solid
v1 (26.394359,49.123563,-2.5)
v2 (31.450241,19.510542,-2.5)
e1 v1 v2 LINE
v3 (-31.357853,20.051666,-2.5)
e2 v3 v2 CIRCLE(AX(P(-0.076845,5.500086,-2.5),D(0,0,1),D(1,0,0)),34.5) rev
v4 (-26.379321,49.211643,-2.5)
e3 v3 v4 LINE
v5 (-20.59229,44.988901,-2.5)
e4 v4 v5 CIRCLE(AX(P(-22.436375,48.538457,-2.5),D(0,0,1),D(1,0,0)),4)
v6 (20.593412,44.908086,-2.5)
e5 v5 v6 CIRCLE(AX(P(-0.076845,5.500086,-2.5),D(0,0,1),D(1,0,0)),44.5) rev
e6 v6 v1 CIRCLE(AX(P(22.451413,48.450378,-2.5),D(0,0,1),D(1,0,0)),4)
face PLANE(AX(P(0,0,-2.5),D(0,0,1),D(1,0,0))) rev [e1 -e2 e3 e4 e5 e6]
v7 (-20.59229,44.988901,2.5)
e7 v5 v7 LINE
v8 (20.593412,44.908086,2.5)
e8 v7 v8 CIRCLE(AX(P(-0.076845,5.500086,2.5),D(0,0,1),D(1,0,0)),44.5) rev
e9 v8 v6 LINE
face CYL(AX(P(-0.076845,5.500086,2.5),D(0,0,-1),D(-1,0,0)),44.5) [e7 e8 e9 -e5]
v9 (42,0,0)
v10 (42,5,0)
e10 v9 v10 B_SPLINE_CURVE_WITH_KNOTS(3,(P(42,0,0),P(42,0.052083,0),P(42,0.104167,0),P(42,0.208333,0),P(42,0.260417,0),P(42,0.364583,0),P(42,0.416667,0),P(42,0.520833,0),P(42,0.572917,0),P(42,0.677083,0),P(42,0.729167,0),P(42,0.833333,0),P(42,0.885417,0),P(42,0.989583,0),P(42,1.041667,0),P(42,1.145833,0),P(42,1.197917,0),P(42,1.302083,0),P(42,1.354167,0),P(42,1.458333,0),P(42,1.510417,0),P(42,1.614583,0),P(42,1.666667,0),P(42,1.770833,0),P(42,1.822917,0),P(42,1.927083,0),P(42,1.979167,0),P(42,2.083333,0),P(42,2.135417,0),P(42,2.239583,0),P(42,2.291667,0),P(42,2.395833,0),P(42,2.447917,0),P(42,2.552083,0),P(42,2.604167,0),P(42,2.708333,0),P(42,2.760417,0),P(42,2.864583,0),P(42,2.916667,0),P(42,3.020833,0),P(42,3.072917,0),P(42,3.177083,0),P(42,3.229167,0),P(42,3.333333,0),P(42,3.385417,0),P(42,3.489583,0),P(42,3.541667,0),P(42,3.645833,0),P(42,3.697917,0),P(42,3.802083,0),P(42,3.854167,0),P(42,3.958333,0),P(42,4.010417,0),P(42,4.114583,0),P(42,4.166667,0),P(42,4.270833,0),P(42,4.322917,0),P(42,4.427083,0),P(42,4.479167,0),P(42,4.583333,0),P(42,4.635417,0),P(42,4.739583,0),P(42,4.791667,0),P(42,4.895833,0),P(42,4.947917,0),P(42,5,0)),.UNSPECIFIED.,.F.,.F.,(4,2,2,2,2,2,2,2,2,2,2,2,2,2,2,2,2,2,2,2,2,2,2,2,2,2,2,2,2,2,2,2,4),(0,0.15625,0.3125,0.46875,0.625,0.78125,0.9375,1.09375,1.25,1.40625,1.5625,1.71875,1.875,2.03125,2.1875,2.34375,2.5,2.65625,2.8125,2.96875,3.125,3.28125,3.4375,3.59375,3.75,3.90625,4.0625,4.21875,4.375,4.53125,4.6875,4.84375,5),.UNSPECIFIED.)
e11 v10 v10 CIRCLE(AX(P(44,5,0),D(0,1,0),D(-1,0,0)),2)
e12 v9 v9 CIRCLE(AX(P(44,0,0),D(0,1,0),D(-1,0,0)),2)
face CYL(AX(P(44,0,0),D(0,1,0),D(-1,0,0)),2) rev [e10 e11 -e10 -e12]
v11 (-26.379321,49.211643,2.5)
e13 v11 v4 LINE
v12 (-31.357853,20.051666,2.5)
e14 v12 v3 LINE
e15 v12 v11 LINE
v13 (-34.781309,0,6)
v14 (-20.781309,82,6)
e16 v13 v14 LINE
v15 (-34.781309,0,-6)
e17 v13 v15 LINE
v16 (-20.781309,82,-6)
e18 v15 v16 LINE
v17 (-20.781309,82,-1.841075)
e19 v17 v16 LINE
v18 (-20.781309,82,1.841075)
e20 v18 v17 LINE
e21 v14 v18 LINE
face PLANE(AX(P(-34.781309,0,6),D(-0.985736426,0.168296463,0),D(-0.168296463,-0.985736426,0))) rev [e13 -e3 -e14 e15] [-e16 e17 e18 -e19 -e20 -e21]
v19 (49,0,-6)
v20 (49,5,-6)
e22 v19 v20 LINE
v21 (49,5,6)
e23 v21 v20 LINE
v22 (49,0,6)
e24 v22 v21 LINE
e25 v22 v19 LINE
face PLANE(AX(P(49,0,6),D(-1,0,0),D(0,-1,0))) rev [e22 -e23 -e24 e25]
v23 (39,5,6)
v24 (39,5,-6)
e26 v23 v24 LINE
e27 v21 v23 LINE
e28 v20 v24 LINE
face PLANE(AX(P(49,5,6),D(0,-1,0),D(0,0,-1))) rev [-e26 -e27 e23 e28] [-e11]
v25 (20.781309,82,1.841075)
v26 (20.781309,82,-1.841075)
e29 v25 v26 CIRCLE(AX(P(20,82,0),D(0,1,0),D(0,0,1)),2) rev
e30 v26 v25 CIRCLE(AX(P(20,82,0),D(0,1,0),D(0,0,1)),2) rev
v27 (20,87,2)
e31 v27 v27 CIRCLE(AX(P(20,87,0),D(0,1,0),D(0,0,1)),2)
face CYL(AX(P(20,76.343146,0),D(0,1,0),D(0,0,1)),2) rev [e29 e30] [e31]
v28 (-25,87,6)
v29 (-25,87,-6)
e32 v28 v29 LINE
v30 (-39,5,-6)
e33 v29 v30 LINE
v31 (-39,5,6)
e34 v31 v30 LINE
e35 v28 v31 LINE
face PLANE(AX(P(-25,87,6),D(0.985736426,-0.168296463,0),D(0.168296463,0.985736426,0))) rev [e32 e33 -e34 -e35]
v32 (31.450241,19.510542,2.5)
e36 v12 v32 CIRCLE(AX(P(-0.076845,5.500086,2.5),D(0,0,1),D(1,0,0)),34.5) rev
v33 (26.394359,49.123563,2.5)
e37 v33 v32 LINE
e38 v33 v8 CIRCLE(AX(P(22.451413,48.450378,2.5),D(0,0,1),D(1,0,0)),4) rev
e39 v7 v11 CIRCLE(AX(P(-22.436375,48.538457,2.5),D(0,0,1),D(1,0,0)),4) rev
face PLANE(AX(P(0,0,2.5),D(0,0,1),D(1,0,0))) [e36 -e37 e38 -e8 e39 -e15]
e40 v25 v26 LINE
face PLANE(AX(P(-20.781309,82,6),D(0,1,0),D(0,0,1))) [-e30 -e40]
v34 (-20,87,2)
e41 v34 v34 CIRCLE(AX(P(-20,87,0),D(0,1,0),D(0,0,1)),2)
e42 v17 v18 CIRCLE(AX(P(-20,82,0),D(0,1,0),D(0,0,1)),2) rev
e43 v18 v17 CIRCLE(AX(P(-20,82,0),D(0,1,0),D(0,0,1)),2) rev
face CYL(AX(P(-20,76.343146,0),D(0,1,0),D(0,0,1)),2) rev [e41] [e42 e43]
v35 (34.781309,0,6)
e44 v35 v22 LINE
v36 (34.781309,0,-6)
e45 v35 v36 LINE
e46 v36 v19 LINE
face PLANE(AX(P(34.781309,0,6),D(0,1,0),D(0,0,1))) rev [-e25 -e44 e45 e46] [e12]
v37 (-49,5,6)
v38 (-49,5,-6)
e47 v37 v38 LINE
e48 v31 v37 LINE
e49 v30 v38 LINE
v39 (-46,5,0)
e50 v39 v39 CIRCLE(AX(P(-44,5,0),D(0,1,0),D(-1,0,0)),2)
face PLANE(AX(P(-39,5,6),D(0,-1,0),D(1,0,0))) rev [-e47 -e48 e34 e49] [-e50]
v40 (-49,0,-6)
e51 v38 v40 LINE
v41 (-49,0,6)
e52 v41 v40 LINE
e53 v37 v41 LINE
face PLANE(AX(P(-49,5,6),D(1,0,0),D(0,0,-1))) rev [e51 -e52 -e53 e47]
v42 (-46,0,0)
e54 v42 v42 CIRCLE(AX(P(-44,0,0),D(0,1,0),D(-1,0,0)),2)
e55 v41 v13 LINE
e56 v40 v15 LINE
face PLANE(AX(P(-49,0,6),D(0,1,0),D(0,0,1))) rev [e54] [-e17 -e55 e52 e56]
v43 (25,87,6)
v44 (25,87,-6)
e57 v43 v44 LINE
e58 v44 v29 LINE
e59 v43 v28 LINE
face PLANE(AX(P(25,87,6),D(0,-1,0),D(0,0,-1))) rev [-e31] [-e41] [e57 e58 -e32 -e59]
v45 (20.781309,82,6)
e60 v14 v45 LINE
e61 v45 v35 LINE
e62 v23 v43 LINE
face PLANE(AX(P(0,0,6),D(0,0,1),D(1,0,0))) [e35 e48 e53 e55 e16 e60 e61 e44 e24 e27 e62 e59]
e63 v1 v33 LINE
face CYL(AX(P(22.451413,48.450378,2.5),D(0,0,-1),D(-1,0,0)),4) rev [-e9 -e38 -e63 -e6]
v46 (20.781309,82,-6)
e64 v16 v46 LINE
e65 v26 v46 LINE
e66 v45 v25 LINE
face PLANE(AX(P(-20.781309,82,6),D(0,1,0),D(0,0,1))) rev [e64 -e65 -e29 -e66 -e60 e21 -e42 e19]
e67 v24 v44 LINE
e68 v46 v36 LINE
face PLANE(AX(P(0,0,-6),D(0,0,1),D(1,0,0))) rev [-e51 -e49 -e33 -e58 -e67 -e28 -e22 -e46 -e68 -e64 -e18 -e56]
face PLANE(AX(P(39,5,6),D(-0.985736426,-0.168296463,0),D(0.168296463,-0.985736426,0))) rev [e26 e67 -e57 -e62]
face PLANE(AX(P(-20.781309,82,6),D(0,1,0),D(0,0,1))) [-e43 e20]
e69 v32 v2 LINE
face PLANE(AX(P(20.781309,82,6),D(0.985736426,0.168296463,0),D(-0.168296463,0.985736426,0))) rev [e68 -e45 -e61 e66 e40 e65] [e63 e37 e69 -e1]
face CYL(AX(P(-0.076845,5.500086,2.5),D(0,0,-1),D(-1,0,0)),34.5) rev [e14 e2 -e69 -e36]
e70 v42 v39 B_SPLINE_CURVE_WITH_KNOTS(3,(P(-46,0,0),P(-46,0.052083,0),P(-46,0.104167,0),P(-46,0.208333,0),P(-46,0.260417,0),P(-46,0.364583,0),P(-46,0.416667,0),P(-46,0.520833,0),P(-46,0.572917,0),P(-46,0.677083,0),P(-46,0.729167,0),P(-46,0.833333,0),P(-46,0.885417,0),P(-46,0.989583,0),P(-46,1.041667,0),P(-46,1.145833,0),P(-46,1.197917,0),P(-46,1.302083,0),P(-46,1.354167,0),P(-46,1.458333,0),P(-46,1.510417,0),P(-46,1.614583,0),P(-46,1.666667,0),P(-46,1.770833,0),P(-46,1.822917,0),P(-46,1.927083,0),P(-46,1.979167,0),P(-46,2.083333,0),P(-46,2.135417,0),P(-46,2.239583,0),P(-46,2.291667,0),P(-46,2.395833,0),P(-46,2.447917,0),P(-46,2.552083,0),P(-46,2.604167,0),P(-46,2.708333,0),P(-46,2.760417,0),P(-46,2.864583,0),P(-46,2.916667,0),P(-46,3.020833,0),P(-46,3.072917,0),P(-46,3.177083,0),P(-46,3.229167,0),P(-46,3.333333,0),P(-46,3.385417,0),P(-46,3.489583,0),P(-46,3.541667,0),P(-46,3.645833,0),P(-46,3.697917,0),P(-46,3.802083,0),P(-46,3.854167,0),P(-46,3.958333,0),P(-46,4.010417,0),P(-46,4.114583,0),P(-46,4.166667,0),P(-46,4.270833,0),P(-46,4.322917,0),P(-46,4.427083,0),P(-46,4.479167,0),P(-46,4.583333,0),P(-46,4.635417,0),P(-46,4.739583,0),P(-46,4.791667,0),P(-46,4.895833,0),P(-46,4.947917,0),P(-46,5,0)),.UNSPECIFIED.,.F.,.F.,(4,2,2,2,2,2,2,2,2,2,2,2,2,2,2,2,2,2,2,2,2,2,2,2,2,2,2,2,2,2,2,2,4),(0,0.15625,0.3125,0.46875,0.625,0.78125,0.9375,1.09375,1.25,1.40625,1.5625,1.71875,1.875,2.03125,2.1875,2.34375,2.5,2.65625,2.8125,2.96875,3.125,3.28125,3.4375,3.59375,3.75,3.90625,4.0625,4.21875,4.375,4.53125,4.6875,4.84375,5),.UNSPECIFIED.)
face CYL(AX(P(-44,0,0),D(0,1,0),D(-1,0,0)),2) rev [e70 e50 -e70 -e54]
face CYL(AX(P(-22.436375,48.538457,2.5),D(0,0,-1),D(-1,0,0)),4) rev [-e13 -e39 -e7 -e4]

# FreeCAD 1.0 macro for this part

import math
import FreeCAD as App
import Part
import Sketcher
from FreeCAD import Vector


def edges_at(feature, points):
    """Names of the edges that pass closest to the given points."""
    edges = feature.Shape.Edges
    near = lambda p: min(range(len(edges)), key=lambda i: edges[i].distToShape(Part.Vertex(*p))[0])
    return sorted({f"Edge{near(p) + 1}" for p in points})


def add_polygon(sketch, points):
    """Adds a closed chain of lines whose ends are joined by coincident constraints."""
    first, n = sketch.GeometryCount, len(points)
    for a, b in zip(points, points[1:] + points[:1]):
        sketch.addGeometry(Part.LineSegment(App.Vector(*a, 0), App.Vector(*b, 0)), False)
    for i in range(n):
        sketch.addConstraint(Sketcher.Constraint("Coincident", first + i, 2, first + (i + 1) % n, 1))

doc = App.newDocument("Part")
body = doc.addObject("PartDesign::Body", "Body")

# Sketch on XY plane
sketch1 = doc.addObject("Sketcher::SketchObject", "Sketch")
body.addObject(sketch1)
sketch1.AttachmentSupport = (doc.XY_Plane, [""])
sketch1.MapMode = "FlatFace"
add_polygon(sketch1, [(-49, 0), (-35, 0), (-21, 82), (21, 82), (35, 0), (49, 0), (49, 5), (39, 5), (25, 87), (-25, 87), (-39, 5), (-49, 5)])  # lines 0-11
sketch1.addConstraint([
    Sketcher.Constraint("Horizontal", 0),
    Sketcher.Constraint("Horizontal", 2),
    Sketcher.Constraint("Horizontal", 4),
    Sketcher.Constraint("Vertical", 5),
    Sketcher.Constraint("Horizontal", 6),
    Sketcher.Constraint("Horizontal", 8),
    Sketcher.Constraint("Horizontal", 10),
    Sketcher.Constraint("Vertical", 11),
    Sketcher.Constraint("Symmetric", 0, 2, 3, 2, -1, 1),
    Sketcher.Constraint("Symmetric", 6, 2, 9, 2, -2),
    Sketcher.Constraint("Symmetric", 4, 2, 11, 2, -2),
    Sketcher.Constraint("Parallel", 3, 7),
    Sketcher.Constraint("Parallel", 1, 9),
    Sketcher.Constraint("Equal", 1, 3),
    Sketcher.Constraint("Equal", 3, 7),
    Sketcher.Constraint("DistanceX", 6, 2, 6, 1, 10.0),
    Sketcher.Constraint("DistanceX", 8, 2, 8, 1, 50.0),
    Sketcher.Constraint("DistanceY", 5, 1, 5, 2, 5.0),
    Sketcher.Constraint("DistanceY", -1, 1, 1, 2, 82.0),
    Sketcher.Constraint("DistanceX", -1, 1, 4, 2, 49.0),
    Sketcher.Constraint("DistanceX", 0, 1, 0, 2, 14.218691),
])
pad1 = doc.addObject("PartDesign::Pad", "Pad")
body.addObject(pad1)
pad1.Profile = sketch1
pad1.Length = 12
pad1.Midplane = True

# Sketch on XY plane
sketch2 = doc.addObject("Sketcher::SketchObject", "Sketch001")
body.addObject(sketch2)
sketch2.AttachmentSupport = (doc.XY_Plane, [""])
sketch2.MapMode = "FlatFace"
sketch2.addGeometry([
    Part.LineSegment(Vector(31, 20, 0), Vector(28, 40, 0)),
    Part.ArcOfCircle(Part.Circle(Vector(0, 6, 0), Vector(0, 0, 1), 45), math.radians(51), math.radians(129)),
    Part.LineSegment(Vector(-28, 40, 0), Vector(-31, 20, 0)),
    Part.ArcOfCircle(Part.Circle(Vector(0, 6, 0), Vector(0, 0, 1), 35), math.radians(24), math.radians(155)),
], False)
sketch2.addConstraint([
    Sketcher.Constraint("Coincident", 0, 2, 1, 1),
    Sketcher.Constraint("Coincident", 1, 2, 2, 1),
    Sketcher.Constraint("Coincident", 2, 2, 3, 2),
    Sketcher.Constraint("Coincident", 3, 1, 0, 1),
    Sketcher.Constraint("Coincident", 3, 3, 1, 3),
    Sketcher.Constraint("Radius", 1, 44.5),
    Sketcher.Constraint("Radius", 3, 34.5),
    Sketcher.Constraint("Distance", 0, 20.860741),
    Sketcher.Constraint("DistanceX", -1, 1, 0, 2, 27.939452),
    Sketcher.Constraint("DistanceY", -1, 1, 1, 2, 40.217391),
    Sketcher.Constraint("DistanceX", -1, 1, 3, 1, 31.450241),
    Sketcher.Constraint("DistanceY", -1, 1, 3, 1, 19.510542),
    Sketcher.Constraint("DistanceX", 2, 2, 1, 2, 3.442929),
])
pad2 = doc.addObject("PartDesign::Pad", "Pad001")
body.addObject(pad2)
pad2.Profile = sketch2
pad2.Length = 5
pad2.Midplane = True
doc.recompute()

fillet = doc.addObject("PartDesign::Fillet", "Fillet")
body.addObject(fillet)
fillet.Base = (pad2, edges_at(pad2, [(27.939, 40.074, 0), (-27.915, 40.217, 0)]))
fillet.Radius = 4

# Sketch on XZ plane
sketch3 = doc.addObject("Sketcher::SketchObject", "Sketch002")
body.addObject(sketch3)
sketch3.AttachmentSupport = (doc.XZ_Plane, [""])
sketch3.MapMode = "FlatFace"
sketch3.AttachmentOffset = App.Placement(Vector(0, 0, -5), App.Rotation())
sketch3.addGeometry([
    Part.Circle(Vector(-44, 0, 0), Vector(0, 0, 1), 2),
    Part.Circle(Vector(44, 0, 0), Vector(0, 0, 1), 2),
], False)
sketch3.addConstraint([
    Sketcher.Constraint("Equal", 0, 1),
    Sketcher.Constraint("Symmetric", 0, 3, 1, 3, -1, 1),
    Sketcher.Constraint("PointOnObject", 0, 3, -1),
    Sketcher.Constraint("Diameter", 0, 4.0),
    Sketcher.Constraint("DistanceX", 0, 3, -1, 1, 44.0),
])
pocket1 = doc.addObject("PartDesign::Pocket", "Pocket")
body.addObject(pocket1)
pocket1.Profile = sketch3
pocket1.Type = "ThroughAll"
pocket1.Reversed = True

# Sketch on XZ plane
sketch4 = doc.addObject("Sketcher::SketchObject", "Sketch003")
body.addObject(sketch4)
sketch4.AttachmentSupport = (doc.XZ_Plane, [""])
sketch4.MapMode = "FlatFace"
sketch4.AttachmentOffset = App.Placement(Vector(0, 0, -87), App.Rotation())
sketch4.addGeometry([
    Part.Circle(Vector(-20, 0, 0), Vector(0, 0, 1), 2),
    Part.Circle(Vector(20, 0, 0), Vector(0, 0, 1), 2),
], False)
sketch4.addConstraint([
    Sketcher.Constraint("Equal", 0, 1),
    Sketcher.Constraint("Symmetric", 0, 3, 1, 3, -1, 1),
    Sketcher.Constraint("PointOnObject", 0, 3, -1),
    Sketcher.Constraint("Diameter", 0, 4.0),
    Sketcher.Constraint("DistanceX", 0, 3, -1, 1, 20.0),
])
pocket2 = doc.addObject("PartDesign::Pocket", "Pocket001")
body.addObject(pocket2)
pocket2.Profile = sketch4
pocket2.Length = 5
pocket2.Reversed = True

doc.recompute()
